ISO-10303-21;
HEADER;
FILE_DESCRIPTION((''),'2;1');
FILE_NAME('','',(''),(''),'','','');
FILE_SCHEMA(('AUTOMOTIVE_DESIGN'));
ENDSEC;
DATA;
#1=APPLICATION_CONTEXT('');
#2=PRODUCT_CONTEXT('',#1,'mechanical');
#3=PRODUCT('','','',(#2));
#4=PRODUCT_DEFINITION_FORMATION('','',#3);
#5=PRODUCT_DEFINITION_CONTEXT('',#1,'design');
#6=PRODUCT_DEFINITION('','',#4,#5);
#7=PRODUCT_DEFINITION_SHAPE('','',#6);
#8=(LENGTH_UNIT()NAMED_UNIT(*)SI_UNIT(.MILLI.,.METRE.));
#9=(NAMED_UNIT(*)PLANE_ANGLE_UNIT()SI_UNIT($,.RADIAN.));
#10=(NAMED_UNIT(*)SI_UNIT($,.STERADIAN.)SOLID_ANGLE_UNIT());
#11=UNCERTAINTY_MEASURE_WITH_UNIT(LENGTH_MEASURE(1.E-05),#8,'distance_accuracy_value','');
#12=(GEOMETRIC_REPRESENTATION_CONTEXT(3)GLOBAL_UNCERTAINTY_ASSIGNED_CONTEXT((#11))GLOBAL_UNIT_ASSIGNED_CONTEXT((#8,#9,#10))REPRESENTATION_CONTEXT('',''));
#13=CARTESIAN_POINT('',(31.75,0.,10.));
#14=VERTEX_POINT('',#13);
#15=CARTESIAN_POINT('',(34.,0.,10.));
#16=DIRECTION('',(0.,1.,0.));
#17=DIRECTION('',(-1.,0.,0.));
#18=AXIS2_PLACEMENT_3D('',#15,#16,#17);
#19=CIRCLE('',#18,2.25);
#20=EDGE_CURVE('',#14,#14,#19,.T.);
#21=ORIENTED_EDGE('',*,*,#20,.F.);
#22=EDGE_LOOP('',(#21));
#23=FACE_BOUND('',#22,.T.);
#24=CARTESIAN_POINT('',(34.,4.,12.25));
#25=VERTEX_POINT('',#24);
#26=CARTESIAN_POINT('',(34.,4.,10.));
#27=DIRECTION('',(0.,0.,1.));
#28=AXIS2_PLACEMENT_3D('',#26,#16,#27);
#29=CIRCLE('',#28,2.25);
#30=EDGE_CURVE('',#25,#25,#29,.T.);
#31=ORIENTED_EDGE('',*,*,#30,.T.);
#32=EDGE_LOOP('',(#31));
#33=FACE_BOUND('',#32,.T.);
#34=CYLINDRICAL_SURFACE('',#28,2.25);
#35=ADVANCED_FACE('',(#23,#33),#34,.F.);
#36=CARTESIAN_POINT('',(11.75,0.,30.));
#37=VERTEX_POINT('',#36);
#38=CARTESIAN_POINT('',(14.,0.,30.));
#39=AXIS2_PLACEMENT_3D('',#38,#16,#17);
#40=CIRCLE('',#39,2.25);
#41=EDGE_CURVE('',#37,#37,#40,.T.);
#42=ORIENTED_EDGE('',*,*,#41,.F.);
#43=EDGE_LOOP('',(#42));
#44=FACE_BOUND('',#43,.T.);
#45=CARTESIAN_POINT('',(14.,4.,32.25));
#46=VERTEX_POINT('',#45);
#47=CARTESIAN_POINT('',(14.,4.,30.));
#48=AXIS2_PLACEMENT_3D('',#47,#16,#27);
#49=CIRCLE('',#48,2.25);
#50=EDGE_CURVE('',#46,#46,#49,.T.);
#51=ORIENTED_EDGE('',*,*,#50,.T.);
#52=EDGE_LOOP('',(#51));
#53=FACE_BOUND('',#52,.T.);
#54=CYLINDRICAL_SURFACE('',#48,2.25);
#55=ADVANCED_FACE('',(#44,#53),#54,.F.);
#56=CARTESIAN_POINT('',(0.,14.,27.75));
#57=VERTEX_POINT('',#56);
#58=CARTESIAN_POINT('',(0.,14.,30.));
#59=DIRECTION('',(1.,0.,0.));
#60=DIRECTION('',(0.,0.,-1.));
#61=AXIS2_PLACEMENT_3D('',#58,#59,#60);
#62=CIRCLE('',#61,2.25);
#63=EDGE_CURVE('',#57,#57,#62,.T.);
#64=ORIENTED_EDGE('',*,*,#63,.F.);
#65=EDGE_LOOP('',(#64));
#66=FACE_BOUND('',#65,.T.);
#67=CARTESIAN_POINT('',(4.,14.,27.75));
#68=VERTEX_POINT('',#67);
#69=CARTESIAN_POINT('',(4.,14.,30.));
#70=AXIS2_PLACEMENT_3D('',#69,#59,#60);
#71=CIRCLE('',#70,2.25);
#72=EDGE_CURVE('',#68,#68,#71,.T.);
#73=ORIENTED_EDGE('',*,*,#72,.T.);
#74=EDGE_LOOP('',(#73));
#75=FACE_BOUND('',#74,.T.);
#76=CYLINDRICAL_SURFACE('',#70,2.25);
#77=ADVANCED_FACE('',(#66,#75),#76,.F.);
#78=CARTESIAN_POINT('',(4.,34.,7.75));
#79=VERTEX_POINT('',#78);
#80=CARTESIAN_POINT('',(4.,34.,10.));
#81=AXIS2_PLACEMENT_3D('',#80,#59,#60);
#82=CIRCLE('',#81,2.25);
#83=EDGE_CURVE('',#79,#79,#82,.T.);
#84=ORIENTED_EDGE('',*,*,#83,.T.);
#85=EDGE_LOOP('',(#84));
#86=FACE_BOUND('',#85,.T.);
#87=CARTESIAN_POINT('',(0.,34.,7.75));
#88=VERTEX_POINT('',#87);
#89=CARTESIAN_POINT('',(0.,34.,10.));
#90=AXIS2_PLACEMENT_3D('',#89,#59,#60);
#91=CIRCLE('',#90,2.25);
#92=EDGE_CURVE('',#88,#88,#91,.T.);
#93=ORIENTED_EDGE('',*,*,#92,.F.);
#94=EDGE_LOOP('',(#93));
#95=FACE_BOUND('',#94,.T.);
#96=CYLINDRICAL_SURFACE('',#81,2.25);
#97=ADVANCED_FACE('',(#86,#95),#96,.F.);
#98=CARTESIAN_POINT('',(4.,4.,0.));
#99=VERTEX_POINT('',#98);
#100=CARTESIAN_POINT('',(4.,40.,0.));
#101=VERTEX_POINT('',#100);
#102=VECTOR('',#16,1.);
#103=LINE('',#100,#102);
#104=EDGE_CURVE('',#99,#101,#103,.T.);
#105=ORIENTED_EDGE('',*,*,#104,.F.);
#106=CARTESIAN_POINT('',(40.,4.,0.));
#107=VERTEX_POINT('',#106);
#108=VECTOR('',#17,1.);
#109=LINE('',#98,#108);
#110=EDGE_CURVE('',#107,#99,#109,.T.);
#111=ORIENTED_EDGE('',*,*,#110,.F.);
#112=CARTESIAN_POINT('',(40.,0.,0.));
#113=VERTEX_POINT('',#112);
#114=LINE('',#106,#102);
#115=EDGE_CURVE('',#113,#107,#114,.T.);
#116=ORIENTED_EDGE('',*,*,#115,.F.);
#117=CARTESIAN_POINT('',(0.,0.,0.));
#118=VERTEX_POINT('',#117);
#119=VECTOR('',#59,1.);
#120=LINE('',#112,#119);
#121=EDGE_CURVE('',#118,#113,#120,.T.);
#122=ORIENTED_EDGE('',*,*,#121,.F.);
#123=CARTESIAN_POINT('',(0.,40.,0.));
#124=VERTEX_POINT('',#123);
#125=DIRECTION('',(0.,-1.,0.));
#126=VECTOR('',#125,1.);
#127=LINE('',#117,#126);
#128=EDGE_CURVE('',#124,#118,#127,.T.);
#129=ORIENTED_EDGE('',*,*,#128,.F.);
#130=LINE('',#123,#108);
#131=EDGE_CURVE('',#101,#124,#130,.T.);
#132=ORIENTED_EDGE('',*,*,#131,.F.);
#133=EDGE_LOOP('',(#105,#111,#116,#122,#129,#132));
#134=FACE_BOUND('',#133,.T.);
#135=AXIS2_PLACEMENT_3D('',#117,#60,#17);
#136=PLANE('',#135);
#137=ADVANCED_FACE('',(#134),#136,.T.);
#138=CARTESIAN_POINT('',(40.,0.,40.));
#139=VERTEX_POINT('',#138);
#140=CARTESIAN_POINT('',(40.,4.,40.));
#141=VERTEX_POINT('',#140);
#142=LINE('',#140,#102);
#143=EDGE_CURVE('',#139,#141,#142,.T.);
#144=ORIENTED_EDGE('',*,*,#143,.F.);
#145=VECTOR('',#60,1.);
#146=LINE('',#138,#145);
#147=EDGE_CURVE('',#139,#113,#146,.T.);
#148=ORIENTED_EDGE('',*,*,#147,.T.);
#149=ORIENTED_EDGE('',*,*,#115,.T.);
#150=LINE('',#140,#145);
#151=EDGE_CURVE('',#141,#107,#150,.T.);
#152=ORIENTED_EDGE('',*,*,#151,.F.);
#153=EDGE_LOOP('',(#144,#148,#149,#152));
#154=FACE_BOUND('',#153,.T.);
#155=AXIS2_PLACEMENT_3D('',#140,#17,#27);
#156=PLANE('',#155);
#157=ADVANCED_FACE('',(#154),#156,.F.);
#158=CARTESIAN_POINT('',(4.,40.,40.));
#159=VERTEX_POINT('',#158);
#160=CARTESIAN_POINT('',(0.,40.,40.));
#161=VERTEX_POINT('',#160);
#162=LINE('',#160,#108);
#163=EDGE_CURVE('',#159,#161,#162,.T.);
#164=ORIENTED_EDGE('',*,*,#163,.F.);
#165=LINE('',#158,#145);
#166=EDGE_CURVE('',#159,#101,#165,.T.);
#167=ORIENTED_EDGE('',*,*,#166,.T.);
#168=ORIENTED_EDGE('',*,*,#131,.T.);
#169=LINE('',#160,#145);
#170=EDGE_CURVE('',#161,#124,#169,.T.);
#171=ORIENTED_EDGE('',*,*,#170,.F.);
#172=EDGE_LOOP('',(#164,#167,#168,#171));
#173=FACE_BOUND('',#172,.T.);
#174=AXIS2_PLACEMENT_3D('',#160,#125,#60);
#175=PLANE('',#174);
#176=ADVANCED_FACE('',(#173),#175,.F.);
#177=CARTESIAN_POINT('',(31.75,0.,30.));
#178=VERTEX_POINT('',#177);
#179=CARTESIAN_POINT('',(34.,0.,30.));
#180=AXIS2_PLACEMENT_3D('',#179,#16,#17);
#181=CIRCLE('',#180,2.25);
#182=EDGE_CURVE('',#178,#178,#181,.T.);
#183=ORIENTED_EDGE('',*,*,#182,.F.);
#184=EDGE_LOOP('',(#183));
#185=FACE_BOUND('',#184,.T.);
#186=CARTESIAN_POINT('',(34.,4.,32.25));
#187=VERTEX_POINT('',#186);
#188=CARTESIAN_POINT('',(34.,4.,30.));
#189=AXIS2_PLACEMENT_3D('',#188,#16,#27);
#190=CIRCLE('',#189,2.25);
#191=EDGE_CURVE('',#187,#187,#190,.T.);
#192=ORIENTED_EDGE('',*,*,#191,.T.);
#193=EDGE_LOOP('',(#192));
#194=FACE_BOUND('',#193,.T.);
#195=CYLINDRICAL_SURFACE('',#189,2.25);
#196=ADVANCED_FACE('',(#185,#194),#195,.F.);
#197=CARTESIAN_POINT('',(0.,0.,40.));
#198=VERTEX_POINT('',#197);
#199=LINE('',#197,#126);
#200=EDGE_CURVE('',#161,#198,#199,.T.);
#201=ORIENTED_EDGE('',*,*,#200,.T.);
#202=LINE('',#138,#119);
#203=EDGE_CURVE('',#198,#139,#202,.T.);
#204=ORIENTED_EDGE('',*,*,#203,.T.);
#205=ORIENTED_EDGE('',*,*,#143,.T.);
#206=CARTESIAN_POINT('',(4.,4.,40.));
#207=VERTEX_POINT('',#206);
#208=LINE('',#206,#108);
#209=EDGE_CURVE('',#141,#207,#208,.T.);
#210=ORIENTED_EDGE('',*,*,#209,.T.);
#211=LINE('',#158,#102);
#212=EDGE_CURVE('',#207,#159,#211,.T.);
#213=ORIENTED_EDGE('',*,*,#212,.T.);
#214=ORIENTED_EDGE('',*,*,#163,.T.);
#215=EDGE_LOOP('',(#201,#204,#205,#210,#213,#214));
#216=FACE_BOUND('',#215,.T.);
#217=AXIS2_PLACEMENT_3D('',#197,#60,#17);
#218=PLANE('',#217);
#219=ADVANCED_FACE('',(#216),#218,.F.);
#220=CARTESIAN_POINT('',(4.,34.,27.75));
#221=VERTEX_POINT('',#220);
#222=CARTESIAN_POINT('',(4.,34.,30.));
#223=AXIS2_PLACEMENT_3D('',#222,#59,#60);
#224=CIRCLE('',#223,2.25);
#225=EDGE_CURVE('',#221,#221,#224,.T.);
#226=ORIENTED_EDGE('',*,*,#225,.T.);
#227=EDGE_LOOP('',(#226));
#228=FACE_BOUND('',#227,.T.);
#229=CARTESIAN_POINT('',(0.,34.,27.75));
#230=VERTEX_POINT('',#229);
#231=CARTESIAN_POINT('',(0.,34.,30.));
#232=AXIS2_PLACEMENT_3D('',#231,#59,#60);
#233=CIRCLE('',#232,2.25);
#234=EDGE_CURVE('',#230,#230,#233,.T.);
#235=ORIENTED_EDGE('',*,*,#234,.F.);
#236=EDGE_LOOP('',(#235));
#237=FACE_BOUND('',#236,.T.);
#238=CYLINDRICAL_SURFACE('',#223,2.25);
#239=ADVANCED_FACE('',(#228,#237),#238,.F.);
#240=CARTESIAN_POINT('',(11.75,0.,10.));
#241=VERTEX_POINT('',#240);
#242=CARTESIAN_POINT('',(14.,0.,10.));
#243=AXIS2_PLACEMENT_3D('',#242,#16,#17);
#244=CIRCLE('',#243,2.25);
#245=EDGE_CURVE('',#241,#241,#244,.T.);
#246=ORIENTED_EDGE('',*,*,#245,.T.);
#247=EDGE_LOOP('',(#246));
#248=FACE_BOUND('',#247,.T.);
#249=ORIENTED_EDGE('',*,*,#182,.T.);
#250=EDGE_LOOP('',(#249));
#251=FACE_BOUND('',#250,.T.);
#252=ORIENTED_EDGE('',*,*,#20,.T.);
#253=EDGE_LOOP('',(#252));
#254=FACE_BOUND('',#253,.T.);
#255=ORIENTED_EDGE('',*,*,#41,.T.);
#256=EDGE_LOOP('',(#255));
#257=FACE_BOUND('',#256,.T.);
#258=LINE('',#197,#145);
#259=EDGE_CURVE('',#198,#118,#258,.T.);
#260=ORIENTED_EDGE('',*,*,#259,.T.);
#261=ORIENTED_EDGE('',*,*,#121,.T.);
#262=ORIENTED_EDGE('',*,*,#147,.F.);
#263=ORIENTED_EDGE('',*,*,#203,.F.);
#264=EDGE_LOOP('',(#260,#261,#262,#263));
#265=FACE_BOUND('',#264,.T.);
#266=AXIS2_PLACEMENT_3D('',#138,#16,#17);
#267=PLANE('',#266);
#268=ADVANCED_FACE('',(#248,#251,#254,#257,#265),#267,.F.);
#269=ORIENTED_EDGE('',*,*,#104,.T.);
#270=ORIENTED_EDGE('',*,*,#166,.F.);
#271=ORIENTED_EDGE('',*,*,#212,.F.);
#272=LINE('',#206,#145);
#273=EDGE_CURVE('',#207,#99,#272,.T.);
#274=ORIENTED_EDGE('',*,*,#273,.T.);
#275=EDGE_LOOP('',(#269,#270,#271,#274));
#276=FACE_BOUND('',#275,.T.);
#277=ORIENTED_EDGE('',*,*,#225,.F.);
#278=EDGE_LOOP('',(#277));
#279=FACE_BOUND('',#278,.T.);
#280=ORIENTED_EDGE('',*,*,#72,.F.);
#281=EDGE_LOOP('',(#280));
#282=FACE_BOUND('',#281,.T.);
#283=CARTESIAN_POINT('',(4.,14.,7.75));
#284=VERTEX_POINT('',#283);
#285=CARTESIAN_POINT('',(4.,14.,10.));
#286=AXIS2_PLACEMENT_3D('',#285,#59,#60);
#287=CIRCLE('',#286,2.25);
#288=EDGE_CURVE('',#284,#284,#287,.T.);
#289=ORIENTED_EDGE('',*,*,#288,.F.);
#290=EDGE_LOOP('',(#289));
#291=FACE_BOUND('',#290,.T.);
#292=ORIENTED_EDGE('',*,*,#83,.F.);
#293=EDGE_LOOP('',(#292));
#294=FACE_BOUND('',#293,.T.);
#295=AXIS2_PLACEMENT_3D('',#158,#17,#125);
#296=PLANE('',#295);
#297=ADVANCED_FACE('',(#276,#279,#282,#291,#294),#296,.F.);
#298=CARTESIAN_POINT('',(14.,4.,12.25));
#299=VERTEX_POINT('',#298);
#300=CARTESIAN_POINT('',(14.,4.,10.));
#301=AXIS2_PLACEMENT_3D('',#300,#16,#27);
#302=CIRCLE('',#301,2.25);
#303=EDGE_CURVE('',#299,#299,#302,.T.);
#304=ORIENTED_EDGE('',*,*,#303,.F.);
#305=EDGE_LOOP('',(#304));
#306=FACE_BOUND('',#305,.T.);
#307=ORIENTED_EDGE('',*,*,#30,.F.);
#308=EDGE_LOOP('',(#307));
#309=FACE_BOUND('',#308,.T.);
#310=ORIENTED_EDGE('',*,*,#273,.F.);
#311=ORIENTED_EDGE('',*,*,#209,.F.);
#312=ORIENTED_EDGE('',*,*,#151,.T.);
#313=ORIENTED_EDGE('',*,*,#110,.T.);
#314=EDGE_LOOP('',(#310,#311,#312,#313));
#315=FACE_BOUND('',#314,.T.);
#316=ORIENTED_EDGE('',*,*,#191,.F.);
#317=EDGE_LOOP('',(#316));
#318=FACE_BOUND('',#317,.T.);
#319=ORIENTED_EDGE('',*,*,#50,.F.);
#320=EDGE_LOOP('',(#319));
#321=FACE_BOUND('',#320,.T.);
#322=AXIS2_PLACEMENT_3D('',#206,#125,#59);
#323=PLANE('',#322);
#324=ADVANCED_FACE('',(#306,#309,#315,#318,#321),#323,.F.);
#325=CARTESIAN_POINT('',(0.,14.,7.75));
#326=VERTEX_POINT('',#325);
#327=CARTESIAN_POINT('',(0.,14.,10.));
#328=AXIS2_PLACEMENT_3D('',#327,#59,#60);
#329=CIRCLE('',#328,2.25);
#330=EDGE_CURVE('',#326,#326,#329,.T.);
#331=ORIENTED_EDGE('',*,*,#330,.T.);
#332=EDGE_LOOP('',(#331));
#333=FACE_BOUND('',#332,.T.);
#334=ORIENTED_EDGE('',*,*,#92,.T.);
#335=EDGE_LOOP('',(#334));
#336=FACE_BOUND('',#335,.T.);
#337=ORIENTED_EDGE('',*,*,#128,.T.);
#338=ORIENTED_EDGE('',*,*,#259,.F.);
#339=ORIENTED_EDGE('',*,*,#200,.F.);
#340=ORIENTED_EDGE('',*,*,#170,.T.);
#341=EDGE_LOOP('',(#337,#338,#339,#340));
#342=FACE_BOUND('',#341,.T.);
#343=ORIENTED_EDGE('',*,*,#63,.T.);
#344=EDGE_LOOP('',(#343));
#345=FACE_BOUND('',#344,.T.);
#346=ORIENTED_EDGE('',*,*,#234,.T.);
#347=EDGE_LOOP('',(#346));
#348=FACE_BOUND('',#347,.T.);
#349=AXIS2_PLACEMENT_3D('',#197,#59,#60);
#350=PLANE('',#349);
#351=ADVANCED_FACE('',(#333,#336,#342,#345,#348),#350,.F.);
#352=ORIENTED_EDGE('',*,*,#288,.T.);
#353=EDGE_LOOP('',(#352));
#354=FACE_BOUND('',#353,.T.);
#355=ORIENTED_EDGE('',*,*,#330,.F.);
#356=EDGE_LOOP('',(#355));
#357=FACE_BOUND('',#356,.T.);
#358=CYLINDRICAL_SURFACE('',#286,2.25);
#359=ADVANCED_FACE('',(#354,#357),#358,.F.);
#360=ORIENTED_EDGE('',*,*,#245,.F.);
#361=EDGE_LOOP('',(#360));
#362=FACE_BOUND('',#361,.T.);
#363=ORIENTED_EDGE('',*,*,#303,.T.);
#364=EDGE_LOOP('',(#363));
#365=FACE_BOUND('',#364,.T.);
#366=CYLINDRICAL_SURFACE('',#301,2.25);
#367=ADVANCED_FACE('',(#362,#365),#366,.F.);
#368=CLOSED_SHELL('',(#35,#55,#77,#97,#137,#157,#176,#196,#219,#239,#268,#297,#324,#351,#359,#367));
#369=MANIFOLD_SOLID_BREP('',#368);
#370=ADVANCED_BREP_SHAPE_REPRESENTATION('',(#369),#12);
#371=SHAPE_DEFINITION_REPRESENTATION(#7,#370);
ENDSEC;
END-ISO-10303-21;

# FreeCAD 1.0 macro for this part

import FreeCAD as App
import Part
import Sketcher

V = App.Vector
Q = App.Units.Quantity


def add_polygon(sketch, points):
    """Adds a closed chain of lines whose ends are joined by coincident constraints."""
    first, n = sketch.GeometryCount, len(points)
    for a, b in zip(points, points[1:] + points[:1]):
        sketch.addGeometry(Part.LineSegment(App.Vector(*a, 0), App.Vector(*b, 0)), False)
    for i in range(n):
        sketch.addConstraint(Sketcher.Constraint("Coincident", first + i, 2, first + (i + 1) % n, 1))

doc = App.newDocument("Part")
params = doc.addObject("Spreadsheet::Sheet", "Params")
for row, (alias, value) in enumerate([
    ("sketch1_width", "40 mm"),
    ("sketch1_width2", "36 mm"),
    ("pad1_length", "40 mm"),
    ("sketch2_diameter", "4.5 mm"),
    ("hole_diameter", "4.5 mm"),
    ("hole_depth", "5 mm"),
    ("sketch3_diameter", "4.5 mm"),
    ("hole2_diameter", "4.5 mm"),
    ("hole2_depth", "5 mm"),
], start=1):
    params.set(f"A{row}", alias)
    params.set(f"B{row}", "=" + value)
    params.setAlias(f"B{row}", alias)

body = doc.addObject("PartDesign::Body", "Body")

sketch1 = body.newObject("Sketcher::SketchObject", "Sketch")
sketch1.AttachmentSupport = (doc.getObject("XY_Plane"), [""])
sketch1.MapMode = "FlatFace"
add_polygon(sketch1, [(0, 40), (0, 0), (40, 0), (40, 4), (4, 4), (4, 40)])
sketch1.addConstraint(Sketcher.Constraint("Vertical", 0))
sketch1.addConstraint(Sketcher.Constraint("Horizontal", 1))
sketch1.addConstraint(Sketcher.Constraint("Vertical", 2))
sketch1.addConstraint(Sketcher.Constraint("Horizontal", 3))
sketch1.addConstraint(Sketcher.Constraint("Vertical", 4))
sketch1.addConstraint(Sketcher.Constraint("Horizontal", 5))
sketch1.addConstraint(Sketcher.Constraint("Coincident", 0, 2, -1, 1))
sketch1.addConstraint(Sketcher.Constraint("Equal", 1, 0))
sketch1.addConstraint(Sketcher.Constraint("Equal", 5, 2))
sketch1.addConstraint(Sketcher.Constraint("DistanceX", 1, 1, 1, 2, Q("40 mm")))
sketch1.addConstraint(Sketcher.Constraint("DistanceX", 3, 2, 3, 1, Q("36 mm")))
sketch1.setExpression("Constraints[15]", "Params.sketch1_width")
sketch1.setExpression("Constraints[16]", "Params.sketch1_width2")
pad1 = body.newObject("PartDesign::Pad", "Pad")
pad1.Profile = sketch1
pad1.setExpression("Length", "Params.pad1_length")

sketch2 = body.newObject("Sketcher::SketchObject", "Sketch001")
sketch2.AttachmentSupport = (doc.getObject("XZ_Plane"), [""])
sketch2.MapMode = "FlatFace"
sketch2.AttachmentOffset = App.Placement(V(0, 0, -4), App.Rotation())
sketch2.addGeometry(Part.Circle(V(34, 10, 0), V(0, 0, 1), 2.2), False)
sketch2.addGeometry(Part.Circle(V(14, 10, 0), V(0, 0, 1), 2.2), False)
sketch2.addGeometry(Part.Circle(V(34, 30, 0), V(0, 0, 1), 2.2), False)
sketch2.addGeometry(Part.Circle(V(14, 30, 0), V(0, 0, 1), 2.2), False)
sketch2.addConstraint(Sketcher.Constraint("Equal", 0, 1))
sketch2.addConstraint(Sketcher.Constraint("Equal", 1, 2))
sketch2.addConstraint(Sketcher.Constraint("Equal", 2, 3))
sketch2.addConstraint(Sketcher.Constraint("Horizontal", 0, 3, 1, 3))
sketch2.addConstraint(Sketcher.Constraint("Horizontal", 2, 3, 3, 3))
sketch2.addConstraint(Sketcher.Constraint("Vertical", 0, 3, 2, 3))
sketch2.addConstraint(Sketcher.Constraint("Vertical", 1, 3, 3, 3))
sketch2.addConstraint(Sketcher.Constraint("Diameter", 0, Q("4.5 mm")))
sketch2.addConstraint(Sketcher.Constraint("DistanceX", -1, 1, 0, 3, Q("34 mm")))
sketch2.addConstraint(Sketcher.Constraint("DistanceY", -1, 1, 0, 3, Q("10 mm")))
sketch2.addConstraint(Sketcher.Constraint("DistanceX", -1, 1, 1, 3, Q("14 mm")))
sketch2.addConstraint(Sketcher.Constraint("DistanceY", -1, 1, 2, 3, Q("30 mm")))
sketch2.setExpression("Constraints[7]", "Params.sketch2_diameter")
doc.recompute()
hole = body.newObject("PartDesign::Hole", "Hole")
hole.Profile = sketch2
hole.ThreadType = "None"
hole.setExpression("Diameter", "Params.hole_diameter")
hole.DepthType = "Dimension"
hole.setExpression("Depth", "Params.hole_depth")
hole.DrillPoint = "Angled"
hole.DrillPointAngle = 118
hole.Reversed = True

sketch3 = body.newObject("Sketcher::SketchObject", "Sketch002")
sketch3.AttachmentSupport = (doc.getObject("YZ_Plane"), [""])
sketch3.MapMode = "FlatFace"
sketch3.AttachmentOffset = App.Placement(V(0, 0, 4), App.Rotation())
sketch3.addGeometry(Part.Circle(V(34, 10, 0), V(0, 0, 1), 2.2), False)
sketch3.addGeometry(Part.Circle(V(34, 30, 0), V(0, 0, 1), 2.2), False)
sketch3.addGeometry(Part.Circle(V(14, 10, 0), V(0, 0, 1), 2.2), False)
sketch3.addGeometry(Part.Circle(V(14, 30, 0), V(0, 0, 1), 2.2), False)
sketch3.addConstraint(Sketcher.Constraint("Equal", 0, 1))
sketch3.addConstraint(Sketcher.Constraint("Equal", 1, 2))
sketch3.addConstraint(Sketcher.Constraint("Equal", 2, 3))
sketch3.addConstraint(Sketcher.Constraint("Horizontal", 0, 3, 2, 3))
sketch3.addConstraint(Sketcher.Constraint("Horizontal", 1, 3, 3, 3))
sketch3.addConstraint(Sketcher.Constraint("Vertical", 0, 3, 1, 3))
sketch3.addConstraint(Sketcher.Constraint("Vertical", 2, 3, 3, 3))
sketch3.addConstraint(Sketcher.Constraint("Diameter", 0, Q("4.5 mm")))
sketch3.addConstraint(Sketcher.Constraint("DistanceX", -1, 1, 0, 3, Q("34 mm")))
sketch3.addConstraint(Sketcher.Constraint("DistanceY", -1, 1, 0, 3, Q("10 mm")))
sketch3.addConstraint(Sketcher.Constraint("DistanceY", -1, 1, 1, 3, Q("30 mm")))
sketch3.addConstraint(Sketcher.Constraint("DistanceX", -1, 1, 2, 3, Q("14 mm")))
sketch3.setExpression("Constraints[7]", "Params.sketch3_diameter")
doc.recompute()
hole2 = body.newObject("PartDesign::Hole", "Hole001")
hole2.Profile = sketch3
hole2.ThreadType = "None"
hole2.setExpression("Diameter", "Params.hole2_diameter")
hole2.DepthType = "Dimension"
hole2.setExpression("Depth", "Params.hole2_depth")
hole2.DrillPoint = "Angled"
hole2.DrillPointAngle = 118

doc.recompute()
